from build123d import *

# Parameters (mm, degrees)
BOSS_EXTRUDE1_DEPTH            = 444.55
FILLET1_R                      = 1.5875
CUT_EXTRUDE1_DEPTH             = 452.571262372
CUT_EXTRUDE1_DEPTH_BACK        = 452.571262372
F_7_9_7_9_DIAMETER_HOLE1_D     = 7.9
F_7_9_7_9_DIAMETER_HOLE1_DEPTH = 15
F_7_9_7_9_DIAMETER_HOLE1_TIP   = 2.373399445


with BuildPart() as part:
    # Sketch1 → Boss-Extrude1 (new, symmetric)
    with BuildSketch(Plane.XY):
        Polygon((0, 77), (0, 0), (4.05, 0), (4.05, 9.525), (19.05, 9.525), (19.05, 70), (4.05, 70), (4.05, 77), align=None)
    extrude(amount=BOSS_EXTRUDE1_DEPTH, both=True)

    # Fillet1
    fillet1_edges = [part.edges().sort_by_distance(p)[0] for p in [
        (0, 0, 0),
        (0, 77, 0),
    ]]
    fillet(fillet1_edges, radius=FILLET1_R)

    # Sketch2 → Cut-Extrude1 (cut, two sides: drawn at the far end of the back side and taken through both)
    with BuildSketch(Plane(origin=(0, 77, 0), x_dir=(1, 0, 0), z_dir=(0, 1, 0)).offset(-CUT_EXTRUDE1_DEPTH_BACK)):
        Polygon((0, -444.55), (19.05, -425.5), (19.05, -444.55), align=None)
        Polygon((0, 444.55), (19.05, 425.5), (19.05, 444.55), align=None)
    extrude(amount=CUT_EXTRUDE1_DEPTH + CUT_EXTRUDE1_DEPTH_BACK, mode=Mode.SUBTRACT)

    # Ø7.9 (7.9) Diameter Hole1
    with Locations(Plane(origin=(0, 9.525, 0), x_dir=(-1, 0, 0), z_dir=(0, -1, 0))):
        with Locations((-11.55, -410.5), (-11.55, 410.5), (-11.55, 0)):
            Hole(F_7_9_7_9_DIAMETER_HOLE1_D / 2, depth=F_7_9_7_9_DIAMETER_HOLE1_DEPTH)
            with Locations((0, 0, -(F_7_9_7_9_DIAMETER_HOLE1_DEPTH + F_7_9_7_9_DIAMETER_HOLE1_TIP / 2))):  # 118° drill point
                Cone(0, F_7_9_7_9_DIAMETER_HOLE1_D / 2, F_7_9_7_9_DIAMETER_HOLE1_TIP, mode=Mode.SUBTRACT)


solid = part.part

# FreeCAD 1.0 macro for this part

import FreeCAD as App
import Part
import Sketcher
from FreeCAD import Vector


def edges_at(feature, points):
    """Names of the edges that pass closest to the given points."""
    edges = feature.Shape.Edges
    near = lambda p: min(range(len(edges)), key=lambda i: edges[i].distToShape(Part.Vertex(*p))[0])
    return sorted({f"Edge{near(p) + 1}" for p in points})

doc = App.newDocument("Part")
params = doc.addObject("Spreadsheet::Sheet", "Params")
for row, (alias, value) in enumerate([
    ("sketch1_width", "15 mm"),
    ("sketch1_height", "77 mm"),
    ("sketch1_height2", "7 mm"),
    ("sketch1_width2", "4.05 mm"),
    ("pad1_length", "889.1 mm"),
    ("fillet_radius", "1.5875 mm"),
    ("sketch2_width", "19.05 mm"),
    ("sketch3_diameter", "7.9 mm"),
    ("hole_diameter", "7.9 mm"),
    ("hole_depth", "15 mm"),
], start=1):
    params.set(f"A{row}", alias)
    params.set(f"B{row}", "=" + value)
    params.setAlias(f"B{row}", alias)

body = doc.addObject("PartDesign::Body", "Body")

# Sketch on XY plane
sketch1 = body.newObject("Sketcher::SketchObject", "Sketch")
sketch1.AttachmentSupport = (doc.getObject("XY_Plane"), [""])
sketch1.MapMode = "FlatFace"
sketch1.addGeometry([
    Part.LineSegment(Vector(0, 77, 0), Vector(0, 0, 0)),  # 0
    Part.LineSegment(Vector(0, 0, 0), Vector(4.05, 0, 0)),  # 1
    Part.LineSegment(Vector(4.05, 0, 0), Vector(4.05, 9.525, 0)),  # 2
    Part.LineSegment(Vector(4.05, 9.525, 0), Vector(19.05, 9.525, 0)),  # 3
    Part.LineSegment(Vector(19.05, 9.525, 0), Vector(19.05, 70, 0)),  # 4
    Part.LineSegment(Vector(19.05, 70, 0), Vector(4.05, 70, 0)),  # 5
    Part.LineSegment(Vector(4.05, 70, 0), Vector(4.05, 77, 0)),  # 6
    Part.LineSegment(Vector(4.05, 77, 0), Vector(0, 77, 0)),  # 7
], False)
sketch1.addConstraint([
    Sketcher.Constraint("Coincident", 0, 2, 1, 1),
    Sketcher.Constraint("Coincident", 1, 2, 2, 1),
    Sketcher.Constraint("Coincident", 2, 2, 3, 1),
    Sketcher.Constraint("Coincident", 3, 2, 4, 1),
    Sketcher.Constraint("Coincident", 4, 2, 5, 1),
    Sketcher.Constraint("Coincident", 5, 2, 6, 1),
    Sketcher.Constraint("Coincident", 6, 2, 7, 1),
    Sketcher.Constraint("Coincident", 7, 2, 0, 1),
    Sketcher.Constraint("Vertical", 0),
    Sketcher.Constraint("Horizontal", 1),
    Sketcher.Constraint("Vertical", 2),
    Sketcher.Constraint("Horizontal", 3),
    Sketcher.Constraint("Vertical", 4),
    Sketcher.Constraint("Horizontal", 5),
    Sketcher.Constraint("Vertical", 6),
    Sketcher.Constraint("Horizontal", 7),
    Sketcher.Constraint("Coincident", 0, 2, -1, 1),
    Sketcher.Constraint("Vertical", 2, 2, 5, 2),
    Sketcher.Constraint("DistanceX", 3, 1, 3, 2, 15.0),
    Sketcher.Constraint("DistanceY", 0, 2, 0, 1, 77.0),
    Sketcher.Constraint("DistanceY", 6, 1, 6, 2, 7.0),
    Sketcher.Constraint("DistanceX", 1, 1, 1, 2, 4.05),
    Sketcher.Constraint("DistanceY", 2, 1, 2, 2, 9.525),
])
sketch1.setExpression("Constraints[18]", "Params.sketch1_width")
sketch1.setExpression("Constraints[19]", "Params.sketch1_height")
sketch1.setExpression("Constraints[20]", "Params.sketch1_height2")
sketch1.setExpression("Constraints[21]", "Params.sketch1_width2")
pad1 = body.newObject("PartDesign::Pad", "Pad")
pad1.Profile = sketch1
pad1.setExpression("Length", "Params.pad1_length")
pad1.Midplane = True
doc.recompute()

fillet = body.newObject("PartDesign::Fillet", "Fillet")
fillet.Base = (pad1, edges_at(pad1, [(0, 0, 0), (0, 77, 0)]))
fillet.setExpression("Radius", "Params.fillet_radius")

# Sketch on XZ plane
sketch2 = body.newObject("Sketcher::SketchObject", "Sketch001")
sketch2.AttachmentSupport = (doc.getObject("XZ_Plane"), [""])
sketch2.MapMode = "FlatFace"
sketch2.AttachmentOffset = App.Placement(Vector(0, 0, -77), App.Rotation())
sketch2.addGeometry([
    Part.LineSegment(Vector(19.05, 425.5, 0), Vector(0, 444.55, 0)),  # 0
    Part.LineSegment(Vector(0, 444.55, 0), Vector(19.05, 444.55, 0)),  # 1
    Part.LineSegment(Vector(19.05, 444.55, 0), Vector(19.05, 425.5, 0)),  # 2
    Part.LineSegment(Vector(0, -444.55, 0), Vector(19.05, -425.5, 0)),  # 3
    Part.LineSegment(Vector(19.05, -425.5, 0), Vector(19.05, -444.55, 0)),  # 4
    Part.LineSegment(Vector(19.05, -444.55, 0), Vector(0, -444.55, 0)),  # 5
], False)
sketch2.addConstraint([
    Sketcher.Constraint("Coincident", 0, 2, 1, 1),
    Sketcher.Constraint("Coincident", 1, 2, 2, 1),
    Sketcher.Constraint("Coincident", 2, 2, 0, 1),
    Sketcher.Constraint("Coincident", 3, 2, 4, 1),
    Sketcher.Constraint("Coincident", 4, 2, 5, 1),
    Sketcher.Constraint("Coincident", 5, 2, 3, 1),
    Sketcher.Constraint("Horizontal", 1),
    Sketcher.Constraint("Vertical", 2),
    Sketcher.Constraint("Vertical", 4),
    Sketcher.Constraint("Horizontal", 5),
    Sketcher.Constraint("Symmetric", 0, 2, 5, 2, -1, 1),
    Sketcher.Constraint("Symmetric", 2, 2, 3, 2, -1),
    Sketcher.Constraint("PointOnObject", 0, 2, -2),
    Sketcher.Constraint("Perpendicular", 0, 3),
    Sketcher.Constraint("DistanceY", 3, 2, 2, 2, 851.0),
    Sketcher.Constraint("DistanceX", 1, 1, 1, 2, 19.05),
])
sketch2.setExpression("Constraints[15]", "Params.sketch2_width")
pocket1 = body.newObject("PartDesign::Pocket", "Pocket")
pocket1.Profile = sketch2
pocket1.Type = "ThroughAll"
pocket1.Midplane = True

# Sketch on XZ plane
sketch3 = body.newObject("Sketcher::SketchObject", "Sketch002")
sketch3.AttachmentSupport = (doc.getObject("XZ_Plane"), [""])
sketch3.MapMode = "FlatFace"
sketch3.AttachmentOffset = App.Placement(Vector(0, 0, -9.525), App.Rotation())
sketch3.addGeometry([
    Part.Circle(Vector(11.55, 410.5, 0), Vector(0, 0, 1), 3.95),
    Part.Circle(Vector(11.55, -410.5, 0), Vector(0, 0, 1), 3.95),
    Part.Circle(Vector(11.55, 0, 0), Vector(0, 0, 1), 3.95),
], False)
sketch3.addConstraint([
    Sketcher.Constraint("Equal", 0, 1),
    Sketcher.Constraint("Equal", 1, 2),
    Sketcher.Constraint("Symmetric", 0, 3, 1, 3, -1),
    Sketcher.Constraint("PointOnObject", 2, 3, -1),
    Sketcher.Constraint("Vertical", 1, 3, 2, 3),
    Sketcher.Constraint("Diameter", 0, 7.9),
    Sketcher.Constraint("DistanceY", 1, 3, 0, 3, 821.0),
    Sketcher.Constraint("DistanceX", -1, 1, 0, 3, 11.55),
])
sketch3.setExpression("Constraints[5]", "Params.sketch3_diameter")
doc.recompute()
hole = body.newObject("PartDesign::Hole", "Hole")
hole.Profile = sketch3
hole.ThreadType = "None"
hole.setExpression("Diameter", "Params.hole_diameter")
hole.DepthType = "Dimension"
hole.setExpression("Depth", "Params.hole_depth")
hole.DrillPoint = "Angled"
hole.DrillPointAngle = 118

doc.recompute()
